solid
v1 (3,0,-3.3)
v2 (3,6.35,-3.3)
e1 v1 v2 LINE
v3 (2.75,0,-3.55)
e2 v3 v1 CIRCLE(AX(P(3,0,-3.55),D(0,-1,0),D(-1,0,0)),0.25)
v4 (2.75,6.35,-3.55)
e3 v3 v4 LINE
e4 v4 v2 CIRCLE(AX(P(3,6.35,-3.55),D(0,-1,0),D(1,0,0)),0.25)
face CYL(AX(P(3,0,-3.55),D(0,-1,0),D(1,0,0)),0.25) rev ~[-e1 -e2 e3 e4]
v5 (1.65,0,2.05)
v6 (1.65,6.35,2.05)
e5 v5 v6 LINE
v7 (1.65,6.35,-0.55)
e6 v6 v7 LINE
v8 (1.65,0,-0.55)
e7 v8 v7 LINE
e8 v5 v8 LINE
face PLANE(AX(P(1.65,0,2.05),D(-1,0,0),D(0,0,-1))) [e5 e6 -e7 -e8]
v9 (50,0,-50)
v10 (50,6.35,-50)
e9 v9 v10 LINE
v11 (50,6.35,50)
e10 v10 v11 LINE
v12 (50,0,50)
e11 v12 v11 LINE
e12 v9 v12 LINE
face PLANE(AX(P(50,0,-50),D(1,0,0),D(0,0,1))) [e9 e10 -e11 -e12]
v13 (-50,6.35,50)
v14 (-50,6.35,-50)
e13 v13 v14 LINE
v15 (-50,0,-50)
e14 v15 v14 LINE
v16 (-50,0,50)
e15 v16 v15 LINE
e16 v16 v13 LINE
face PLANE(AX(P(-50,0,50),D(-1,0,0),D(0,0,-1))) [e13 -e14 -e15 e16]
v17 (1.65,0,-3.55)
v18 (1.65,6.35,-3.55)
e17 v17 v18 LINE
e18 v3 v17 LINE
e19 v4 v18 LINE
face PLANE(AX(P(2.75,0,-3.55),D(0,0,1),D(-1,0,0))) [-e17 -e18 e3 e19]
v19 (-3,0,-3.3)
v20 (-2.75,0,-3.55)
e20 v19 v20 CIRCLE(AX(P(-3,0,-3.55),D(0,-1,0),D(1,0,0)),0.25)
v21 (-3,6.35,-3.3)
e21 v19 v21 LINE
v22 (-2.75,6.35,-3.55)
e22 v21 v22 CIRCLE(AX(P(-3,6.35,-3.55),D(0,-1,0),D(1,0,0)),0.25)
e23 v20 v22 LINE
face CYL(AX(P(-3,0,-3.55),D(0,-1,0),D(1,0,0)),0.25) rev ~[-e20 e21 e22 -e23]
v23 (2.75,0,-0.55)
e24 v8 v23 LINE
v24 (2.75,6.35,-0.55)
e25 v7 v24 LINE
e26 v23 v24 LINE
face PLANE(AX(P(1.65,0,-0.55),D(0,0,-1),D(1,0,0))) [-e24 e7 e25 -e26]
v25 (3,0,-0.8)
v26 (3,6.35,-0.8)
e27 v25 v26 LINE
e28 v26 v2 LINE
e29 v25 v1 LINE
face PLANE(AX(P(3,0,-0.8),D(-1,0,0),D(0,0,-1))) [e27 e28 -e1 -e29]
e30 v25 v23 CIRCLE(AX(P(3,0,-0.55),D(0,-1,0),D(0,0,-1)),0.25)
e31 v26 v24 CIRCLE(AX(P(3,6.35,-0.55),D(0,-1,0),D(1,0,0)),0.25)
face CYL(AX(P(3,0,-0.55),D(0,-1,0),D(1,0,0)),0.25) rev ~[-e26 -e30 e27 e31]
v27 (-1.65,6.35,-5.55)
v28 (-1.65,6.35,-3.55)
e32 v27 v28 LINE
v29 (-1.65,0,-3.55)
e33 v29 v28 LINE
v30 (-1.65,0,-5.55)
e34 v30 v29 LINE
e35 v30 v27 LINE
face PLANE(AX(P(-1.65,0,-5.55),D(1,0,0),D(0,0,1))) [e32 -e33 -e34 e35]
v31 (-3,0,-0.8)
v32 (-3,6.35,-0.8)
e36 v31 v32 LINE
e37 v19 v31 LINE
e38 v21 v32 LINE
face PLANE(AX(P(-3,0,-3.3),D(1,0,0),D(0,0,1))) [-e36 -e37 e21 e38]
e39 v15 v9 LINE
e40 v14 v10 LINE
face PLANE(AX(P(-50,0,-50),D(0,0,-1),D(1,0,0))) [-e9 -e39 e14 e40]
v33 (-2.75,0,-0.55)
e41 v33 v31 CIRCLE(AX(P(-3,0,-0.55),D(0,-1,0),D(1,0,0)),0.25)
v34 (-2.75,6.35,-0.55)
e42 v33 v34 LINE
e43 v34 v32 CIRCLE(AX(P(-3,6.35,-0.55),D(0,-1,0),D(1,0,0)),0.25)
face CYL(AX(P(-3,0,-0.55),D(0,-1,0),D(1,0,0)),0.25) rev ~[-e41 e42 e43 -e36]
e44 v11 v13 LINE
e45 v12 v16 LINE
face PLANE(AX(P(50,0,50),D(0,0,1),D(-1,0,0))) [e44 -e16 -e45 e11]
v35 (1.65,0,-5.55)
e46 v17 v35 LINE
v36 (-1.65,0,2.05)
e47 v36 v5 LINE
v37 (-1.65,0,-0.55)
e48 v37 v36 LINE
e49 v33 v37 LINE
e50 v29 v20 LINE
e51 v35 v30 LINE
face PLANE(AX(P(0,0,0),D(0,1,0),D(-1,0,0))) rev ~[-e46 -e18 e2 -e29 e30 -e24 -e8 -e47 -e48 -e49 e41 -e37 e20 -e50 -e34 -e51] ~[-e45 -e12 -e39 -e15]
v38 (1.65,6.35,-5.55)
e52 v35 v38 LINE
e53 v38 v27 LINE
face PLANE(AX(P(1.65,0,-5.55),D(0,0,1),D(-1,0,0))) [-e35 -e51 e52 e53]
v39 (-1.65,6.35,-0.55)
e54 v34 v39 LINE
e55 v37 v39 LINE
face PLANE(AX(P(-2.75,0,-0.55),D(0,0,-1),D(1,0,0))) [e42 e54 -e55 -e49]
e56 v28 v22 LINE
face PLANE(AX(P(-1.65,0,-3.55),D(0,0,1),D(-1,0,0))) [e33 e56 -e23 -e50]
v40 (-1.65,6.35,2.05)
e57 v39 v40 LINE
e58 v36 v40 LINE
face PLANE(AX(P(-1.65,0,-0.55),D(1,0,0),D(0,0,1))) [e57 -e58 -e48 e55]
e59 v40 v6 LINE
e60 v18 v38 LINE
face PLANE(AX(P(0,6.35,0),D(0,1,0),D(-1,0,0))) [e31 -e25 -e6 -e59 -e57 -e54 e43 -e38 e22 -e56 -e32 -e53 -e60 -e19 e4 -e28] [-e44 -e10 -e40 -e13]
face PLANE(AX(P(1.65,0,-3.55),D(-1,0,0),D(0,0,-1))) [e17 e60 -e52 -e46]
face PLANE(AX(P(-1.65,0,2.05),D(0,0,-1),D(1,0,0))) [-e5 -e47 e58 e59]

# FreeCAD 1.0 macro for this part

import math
import FreeCAD as App
import Part
import Sketcher
from FreeCAD import Vector


def add_polygon(sketch, points):
    """Adds a closed chain of lines whose ends are joined by coincident constraints."""
    first, n = sketch.GeometryCount, len(points)
    for a, b in zip(points, points[1:] + points[:1]):
        sketch.addGeometry(Part.LineSegment(App.Vector(*a, 0), App.Vector(*b, 0)), False)
    for i in range(n):
        sketch.addConstraint(Sketcher.Constraint("Coincident", first + i, 2, first + (i + 1) % n, 1))

doc = App.newDocument("Part")
params = doc.addObject("Spreadsheet::Sheet", "Params")
for row, (alias, value) in enumerate([
    ("sketch1_width", "100 mm"),
    ("pad1_length", "6.35 mm"),
    ("sketch2_height", "2 mm"),
    ("sketch2_radius", "0.25 mm"),
    ("sketch2_width", "3.3 mm"),
], start=1):
    params.set(f"A{row}", alias)
    params.set(f"B{row}", "=" + value)
    params.setAlias(f"B{row}", alias)

body = doc.addObject("PartDesign::Body", "Body")

sketch1 = body.newObject("Sketcher::SketchObject", "Sketch")
sketch1.AttachmentSupport = (doc.getObject("XZ_Plane"), [""])
sketch1.MapMode = "FlatFace"
add_polygon(sketch1, [(50, -50), (-50, -50), (-50, 50), (50, 50)])
sketch1.addConstraint(Sketcher.Constraint("Horizontal", 0))
sketch1.addConstraint(Sketcher.Constraint("Vertical", 1))
sketch1.addConstraint(Sketcher.Constraint("Horizontal", 2))
sketch1.addConstraint(Sketcher.Constraint("Vertical", 3))
sketch1.addConstraint(Sketcher.Constraint("Symmetric", 0, 2, 2, 2, -1, 1))
sketch1.addConstraint(Sketcher.Constraint("Equal", 2, 1))
sketch1.addConstraint(Sketcher.Constraint("DistanceX", 0, 2, 0, 1, 100.0))
sketch1.setExpression("Constraints[10]", "Params.sketch1_width")
pad1 = body.newObject("PartDesign::Pad", "Pad")
pad1.Profile = sketch1
pad1.setExpression("Length", "Params.pad1_length")
pad1.Reversed = True

sketch2 = body.newObject("Sketcher::SketchObject", "Sketch001")
sketch2.AttachmentSupport = (doc.getObject("XZ_Plane"), [""])
sketch2.MapMode = "FlatFace"
sketch2.addGeometry(Part.LineSegment(Vector(2.75, -0.55, 0), Vector(1.65, -0.55, 0)), False)
sketch2.addGeometry(Part.LineSegment(Vector(1.65, -0.55, 0), Vector(1.65, 2.05, 0)), False)
sketch2.addGeometry(Part.LineSegment(Vector(1.65, 2.05, 0), Vector(-1.65, 2.05, 0)), False)
sketch2.addGeometry(Part.LineSegment(Vector(-1.65, 2.05, 0), Vector(-1.65, -0.55, 0)), False)
sketch2.addGeometry(Part.LineSegment(Vector(-1.65, -0.55, 0), Vector(-2.75, -0.55, 0)), False)
sketch2.addGeometry(Part.ArcOfCircle(Part.Circle(Vector(-3, -0.55, 0), Vector(0, 0, 1), 0.25), math.radians(0), math.radians(270)), False)
sketch2.addGeometry(Part.LineSegment(Vector(-3, -0.8, 0), Vector(-3, -3.3, 0)), False)
sketch2.addGeometry(Part.ArcOfCircle(Part.Circle(Vector(-3, -3.55, 0), Vector(0, 0, 1), 0.25), math.radians(90), math.radians(360)), False)
sketch2.addGeometry(Part.LineSegment(Vector(-2.75, -3.55, 0), Vector(-1.65, -3.55, 0)), False)
sketch2.addGeometry(Part.LineSegment(Vector(-1.65, -3.55, 0), Vector(-1.65, -5.55, 0)), False)
sketch2.addGeometry(Part.LineSegment(Vector(-1.65, -5.55, 0), Vector(1.65, -5.55, 0)), False)
sketch2.addGeometry(Part.LineSegment(Vector(1.65, -5.55, 0), Vector(1.65, -3.55, 0)), False)
sketch2.addGeometry(Part.LineSegment(Vector(1.65, -3.55, 0), Vector(2.75, -3.55, 0)), False)
sketch2.addGeometry(Part.ArcOfCircle(Part.Circle(Vector(3, -3.55, 0), Vector(0, 0, 1), 0.25), math.radians(180), math.radians(450)), False)
sketch2.addGeometry(Part.LineSegment(Vector(3, -3.3, 0), Vector(3, -0.8, 0)), False)
sketch2.addGeometry(Part.ArcOfCircle(Part.Circle(Vector(3, -0.55, 0), Vector(0, 0, 1), 0.25), math.radians(-90), math.radians(180)), False)
sketch2.addConstraint(Sketcher.Constraint("Coincident", 0, 2, 1, 1))
sketch2.addConstraint(Sketcher.Constraint("Coincident", 1, 2, 2, 1))
sketch2.addConstraint(Sketcher.Constraint("Coincident", 2, 2, 3, 1))
sketch2.addConstraint(Sketcher.Constraint("Coincident", 3, 2, 4, 1))
sketch2.addConstraint(Sketcher.Constraint("Coincident", 4, 2, 5, 1))
sketch2.addConstraint(Sketcher.Constraint("Coincident", 5, 2, 6, 1))
sketch2.addConstraint(Sketcher.Constraint("Coincident", 6, 2, 7, 1))
sketch2.addConstraint(Sketcher.Constraint("Coincident", 7, 2, 8, 1))
sketch2.addConstraint(Sketcher.Constraint("Coincident", 8, 2, 9, 1))
sketch2.addConstraint(Sketcher.Constraint("Coincident", 9, 2, 10, 1))
sketch2.addConstraint(Sketcher.Constraint("Coincident", 10, 2, 11, 1))
sketch2.addConstraint(Sketcher.Constraint("Coincident", 11, 2, 12, 1))
sketch2.addConstraint(Sketcher.Constraint("Coincident", 12, 2, 13, 1))
sketch2.addConstraint(Sketcher.Constraint("Coincident", 13, 2, 14, 1))
sketch2.addConstraint(Sketcher.Constraint("Coincident", 14, 2, 15, 1))
sketch2.addConstraint(Sketcher.Constraint("Coincident", 15, 2, 0, 1))
sketch2.addConstraint(Sketcher.Constraint("Horizontal", 0))
sketch2.addConstraint(Sketcher.Constraint("Vertical", 1))
sketch2.addConstraint(Sketcher.Constraint("Horizontal", 2))
sketch2.addConstraint(Sketcher.Constraint("Vertical", 3))
sketch2.addConstraint(Sketcher.Constraint("Horizontal", 4))
sketch2.addConstraint(Sketcher.Constraint("Vertical", 6))
sketch2.addConstraint(Sketcher.Constraint("Horizontal", 8))
sketch2.addConstraint(Sketcher.Constraint("Vertical", 9))
sketch2.addConstraint(Sketcher.Constraint("Horizontal", 10))
sketch2.addConstraint(Sketcher.Constraint("Vertical", 11))
sketch2.addConstraint(Sketcher.Constraint("Horizontal", 12))
sketch2.addConstraint(Sketcher.Constraint("Vertical", 14))
sketch2.addConstraint(Sketcher.Constraint("Equal", 5, 7))
sketch2.addConstraint(Sketcher.Constraint("Equal", 7, 13))
sketch2.addConstraint(Sketcher.Constraint("Equal", 13, 15))
sketch2.addConstraint(Sketcher.Constraint("Symmetric", 7, 3, 13, 3, -2))
sketch2.addConstraint(Sketcher.Constraint("Symmetric", 5, 3, 15, 3, -2))
sketch2.addConstraint(Sketcher.Constraint("Symmetric", 0, 2, 3, 2, -2))
sketch2.addConstraint(Sketcher.Constraint("Symmetric", 8, 2, 11, 2, -2))
sketch2.addConstraint(Sketcher.Constraint("Horizontal", 15, 3, 0, 2))
sketch2.addConstraint(Sketcher.Constraint("Horizontal", 13, 3, 7, 2))
sketch2.addConstraint(Sketcher.Constraint("Vertical", 5, 3, 7, 3))
sketch2.addConstraint(Sketcher.Constraint("Vertical", 7, 3, 5, 2))
sketch2.addConstraint(Sketcher.Constraint("Vertical", 3, 2, 8, 2))
sketch2.addConstraint(Sketcher.Constraint("Vertical", 15, 3, 13, 2))
sketch2.addConstraint(Sketcher.Constraint("DistanceY", 9, 2, 9, 1, 2.0))
sketch2.addConstraint(Sketcher.Constraint("Radius", 5, 0.25))
sketch2.addConstraint(Sketcher.Constraint("DistanceX", 2, 2, 2, 1, 3.3))
sketch2.addConstraint(Sketcher.Constraint("DistanceX", 5, 3, -1, 1, 3.0))
sketch2.addConstraint(Sketcher.Constraint("DistanceY", 7, 3, 5, 3, 3.0))
sketch2.addConstraint(Sketcher.Constraint("DistanceY", 6, 2, -1, 1, 3.3))
sketch2.addConstraint(Sketcher.Constraint("DistanceY", 13, 3, 1, 2, 5.6))
sketch2.setExpression("Constraints[41]", "Params.sketch2_height")
sketch2.setExpression("Constraints[42]", "Params.sketch2_radius")
sketch2.setExpression("Constraints[43]", "Params.sketch2_width")
pocket1 = body.newObject("PartDesign::Pocket", "Pocket")
pocket1.Profile = sketch2
pocket1.Type = "UpToFirst"

doc.recompute()
